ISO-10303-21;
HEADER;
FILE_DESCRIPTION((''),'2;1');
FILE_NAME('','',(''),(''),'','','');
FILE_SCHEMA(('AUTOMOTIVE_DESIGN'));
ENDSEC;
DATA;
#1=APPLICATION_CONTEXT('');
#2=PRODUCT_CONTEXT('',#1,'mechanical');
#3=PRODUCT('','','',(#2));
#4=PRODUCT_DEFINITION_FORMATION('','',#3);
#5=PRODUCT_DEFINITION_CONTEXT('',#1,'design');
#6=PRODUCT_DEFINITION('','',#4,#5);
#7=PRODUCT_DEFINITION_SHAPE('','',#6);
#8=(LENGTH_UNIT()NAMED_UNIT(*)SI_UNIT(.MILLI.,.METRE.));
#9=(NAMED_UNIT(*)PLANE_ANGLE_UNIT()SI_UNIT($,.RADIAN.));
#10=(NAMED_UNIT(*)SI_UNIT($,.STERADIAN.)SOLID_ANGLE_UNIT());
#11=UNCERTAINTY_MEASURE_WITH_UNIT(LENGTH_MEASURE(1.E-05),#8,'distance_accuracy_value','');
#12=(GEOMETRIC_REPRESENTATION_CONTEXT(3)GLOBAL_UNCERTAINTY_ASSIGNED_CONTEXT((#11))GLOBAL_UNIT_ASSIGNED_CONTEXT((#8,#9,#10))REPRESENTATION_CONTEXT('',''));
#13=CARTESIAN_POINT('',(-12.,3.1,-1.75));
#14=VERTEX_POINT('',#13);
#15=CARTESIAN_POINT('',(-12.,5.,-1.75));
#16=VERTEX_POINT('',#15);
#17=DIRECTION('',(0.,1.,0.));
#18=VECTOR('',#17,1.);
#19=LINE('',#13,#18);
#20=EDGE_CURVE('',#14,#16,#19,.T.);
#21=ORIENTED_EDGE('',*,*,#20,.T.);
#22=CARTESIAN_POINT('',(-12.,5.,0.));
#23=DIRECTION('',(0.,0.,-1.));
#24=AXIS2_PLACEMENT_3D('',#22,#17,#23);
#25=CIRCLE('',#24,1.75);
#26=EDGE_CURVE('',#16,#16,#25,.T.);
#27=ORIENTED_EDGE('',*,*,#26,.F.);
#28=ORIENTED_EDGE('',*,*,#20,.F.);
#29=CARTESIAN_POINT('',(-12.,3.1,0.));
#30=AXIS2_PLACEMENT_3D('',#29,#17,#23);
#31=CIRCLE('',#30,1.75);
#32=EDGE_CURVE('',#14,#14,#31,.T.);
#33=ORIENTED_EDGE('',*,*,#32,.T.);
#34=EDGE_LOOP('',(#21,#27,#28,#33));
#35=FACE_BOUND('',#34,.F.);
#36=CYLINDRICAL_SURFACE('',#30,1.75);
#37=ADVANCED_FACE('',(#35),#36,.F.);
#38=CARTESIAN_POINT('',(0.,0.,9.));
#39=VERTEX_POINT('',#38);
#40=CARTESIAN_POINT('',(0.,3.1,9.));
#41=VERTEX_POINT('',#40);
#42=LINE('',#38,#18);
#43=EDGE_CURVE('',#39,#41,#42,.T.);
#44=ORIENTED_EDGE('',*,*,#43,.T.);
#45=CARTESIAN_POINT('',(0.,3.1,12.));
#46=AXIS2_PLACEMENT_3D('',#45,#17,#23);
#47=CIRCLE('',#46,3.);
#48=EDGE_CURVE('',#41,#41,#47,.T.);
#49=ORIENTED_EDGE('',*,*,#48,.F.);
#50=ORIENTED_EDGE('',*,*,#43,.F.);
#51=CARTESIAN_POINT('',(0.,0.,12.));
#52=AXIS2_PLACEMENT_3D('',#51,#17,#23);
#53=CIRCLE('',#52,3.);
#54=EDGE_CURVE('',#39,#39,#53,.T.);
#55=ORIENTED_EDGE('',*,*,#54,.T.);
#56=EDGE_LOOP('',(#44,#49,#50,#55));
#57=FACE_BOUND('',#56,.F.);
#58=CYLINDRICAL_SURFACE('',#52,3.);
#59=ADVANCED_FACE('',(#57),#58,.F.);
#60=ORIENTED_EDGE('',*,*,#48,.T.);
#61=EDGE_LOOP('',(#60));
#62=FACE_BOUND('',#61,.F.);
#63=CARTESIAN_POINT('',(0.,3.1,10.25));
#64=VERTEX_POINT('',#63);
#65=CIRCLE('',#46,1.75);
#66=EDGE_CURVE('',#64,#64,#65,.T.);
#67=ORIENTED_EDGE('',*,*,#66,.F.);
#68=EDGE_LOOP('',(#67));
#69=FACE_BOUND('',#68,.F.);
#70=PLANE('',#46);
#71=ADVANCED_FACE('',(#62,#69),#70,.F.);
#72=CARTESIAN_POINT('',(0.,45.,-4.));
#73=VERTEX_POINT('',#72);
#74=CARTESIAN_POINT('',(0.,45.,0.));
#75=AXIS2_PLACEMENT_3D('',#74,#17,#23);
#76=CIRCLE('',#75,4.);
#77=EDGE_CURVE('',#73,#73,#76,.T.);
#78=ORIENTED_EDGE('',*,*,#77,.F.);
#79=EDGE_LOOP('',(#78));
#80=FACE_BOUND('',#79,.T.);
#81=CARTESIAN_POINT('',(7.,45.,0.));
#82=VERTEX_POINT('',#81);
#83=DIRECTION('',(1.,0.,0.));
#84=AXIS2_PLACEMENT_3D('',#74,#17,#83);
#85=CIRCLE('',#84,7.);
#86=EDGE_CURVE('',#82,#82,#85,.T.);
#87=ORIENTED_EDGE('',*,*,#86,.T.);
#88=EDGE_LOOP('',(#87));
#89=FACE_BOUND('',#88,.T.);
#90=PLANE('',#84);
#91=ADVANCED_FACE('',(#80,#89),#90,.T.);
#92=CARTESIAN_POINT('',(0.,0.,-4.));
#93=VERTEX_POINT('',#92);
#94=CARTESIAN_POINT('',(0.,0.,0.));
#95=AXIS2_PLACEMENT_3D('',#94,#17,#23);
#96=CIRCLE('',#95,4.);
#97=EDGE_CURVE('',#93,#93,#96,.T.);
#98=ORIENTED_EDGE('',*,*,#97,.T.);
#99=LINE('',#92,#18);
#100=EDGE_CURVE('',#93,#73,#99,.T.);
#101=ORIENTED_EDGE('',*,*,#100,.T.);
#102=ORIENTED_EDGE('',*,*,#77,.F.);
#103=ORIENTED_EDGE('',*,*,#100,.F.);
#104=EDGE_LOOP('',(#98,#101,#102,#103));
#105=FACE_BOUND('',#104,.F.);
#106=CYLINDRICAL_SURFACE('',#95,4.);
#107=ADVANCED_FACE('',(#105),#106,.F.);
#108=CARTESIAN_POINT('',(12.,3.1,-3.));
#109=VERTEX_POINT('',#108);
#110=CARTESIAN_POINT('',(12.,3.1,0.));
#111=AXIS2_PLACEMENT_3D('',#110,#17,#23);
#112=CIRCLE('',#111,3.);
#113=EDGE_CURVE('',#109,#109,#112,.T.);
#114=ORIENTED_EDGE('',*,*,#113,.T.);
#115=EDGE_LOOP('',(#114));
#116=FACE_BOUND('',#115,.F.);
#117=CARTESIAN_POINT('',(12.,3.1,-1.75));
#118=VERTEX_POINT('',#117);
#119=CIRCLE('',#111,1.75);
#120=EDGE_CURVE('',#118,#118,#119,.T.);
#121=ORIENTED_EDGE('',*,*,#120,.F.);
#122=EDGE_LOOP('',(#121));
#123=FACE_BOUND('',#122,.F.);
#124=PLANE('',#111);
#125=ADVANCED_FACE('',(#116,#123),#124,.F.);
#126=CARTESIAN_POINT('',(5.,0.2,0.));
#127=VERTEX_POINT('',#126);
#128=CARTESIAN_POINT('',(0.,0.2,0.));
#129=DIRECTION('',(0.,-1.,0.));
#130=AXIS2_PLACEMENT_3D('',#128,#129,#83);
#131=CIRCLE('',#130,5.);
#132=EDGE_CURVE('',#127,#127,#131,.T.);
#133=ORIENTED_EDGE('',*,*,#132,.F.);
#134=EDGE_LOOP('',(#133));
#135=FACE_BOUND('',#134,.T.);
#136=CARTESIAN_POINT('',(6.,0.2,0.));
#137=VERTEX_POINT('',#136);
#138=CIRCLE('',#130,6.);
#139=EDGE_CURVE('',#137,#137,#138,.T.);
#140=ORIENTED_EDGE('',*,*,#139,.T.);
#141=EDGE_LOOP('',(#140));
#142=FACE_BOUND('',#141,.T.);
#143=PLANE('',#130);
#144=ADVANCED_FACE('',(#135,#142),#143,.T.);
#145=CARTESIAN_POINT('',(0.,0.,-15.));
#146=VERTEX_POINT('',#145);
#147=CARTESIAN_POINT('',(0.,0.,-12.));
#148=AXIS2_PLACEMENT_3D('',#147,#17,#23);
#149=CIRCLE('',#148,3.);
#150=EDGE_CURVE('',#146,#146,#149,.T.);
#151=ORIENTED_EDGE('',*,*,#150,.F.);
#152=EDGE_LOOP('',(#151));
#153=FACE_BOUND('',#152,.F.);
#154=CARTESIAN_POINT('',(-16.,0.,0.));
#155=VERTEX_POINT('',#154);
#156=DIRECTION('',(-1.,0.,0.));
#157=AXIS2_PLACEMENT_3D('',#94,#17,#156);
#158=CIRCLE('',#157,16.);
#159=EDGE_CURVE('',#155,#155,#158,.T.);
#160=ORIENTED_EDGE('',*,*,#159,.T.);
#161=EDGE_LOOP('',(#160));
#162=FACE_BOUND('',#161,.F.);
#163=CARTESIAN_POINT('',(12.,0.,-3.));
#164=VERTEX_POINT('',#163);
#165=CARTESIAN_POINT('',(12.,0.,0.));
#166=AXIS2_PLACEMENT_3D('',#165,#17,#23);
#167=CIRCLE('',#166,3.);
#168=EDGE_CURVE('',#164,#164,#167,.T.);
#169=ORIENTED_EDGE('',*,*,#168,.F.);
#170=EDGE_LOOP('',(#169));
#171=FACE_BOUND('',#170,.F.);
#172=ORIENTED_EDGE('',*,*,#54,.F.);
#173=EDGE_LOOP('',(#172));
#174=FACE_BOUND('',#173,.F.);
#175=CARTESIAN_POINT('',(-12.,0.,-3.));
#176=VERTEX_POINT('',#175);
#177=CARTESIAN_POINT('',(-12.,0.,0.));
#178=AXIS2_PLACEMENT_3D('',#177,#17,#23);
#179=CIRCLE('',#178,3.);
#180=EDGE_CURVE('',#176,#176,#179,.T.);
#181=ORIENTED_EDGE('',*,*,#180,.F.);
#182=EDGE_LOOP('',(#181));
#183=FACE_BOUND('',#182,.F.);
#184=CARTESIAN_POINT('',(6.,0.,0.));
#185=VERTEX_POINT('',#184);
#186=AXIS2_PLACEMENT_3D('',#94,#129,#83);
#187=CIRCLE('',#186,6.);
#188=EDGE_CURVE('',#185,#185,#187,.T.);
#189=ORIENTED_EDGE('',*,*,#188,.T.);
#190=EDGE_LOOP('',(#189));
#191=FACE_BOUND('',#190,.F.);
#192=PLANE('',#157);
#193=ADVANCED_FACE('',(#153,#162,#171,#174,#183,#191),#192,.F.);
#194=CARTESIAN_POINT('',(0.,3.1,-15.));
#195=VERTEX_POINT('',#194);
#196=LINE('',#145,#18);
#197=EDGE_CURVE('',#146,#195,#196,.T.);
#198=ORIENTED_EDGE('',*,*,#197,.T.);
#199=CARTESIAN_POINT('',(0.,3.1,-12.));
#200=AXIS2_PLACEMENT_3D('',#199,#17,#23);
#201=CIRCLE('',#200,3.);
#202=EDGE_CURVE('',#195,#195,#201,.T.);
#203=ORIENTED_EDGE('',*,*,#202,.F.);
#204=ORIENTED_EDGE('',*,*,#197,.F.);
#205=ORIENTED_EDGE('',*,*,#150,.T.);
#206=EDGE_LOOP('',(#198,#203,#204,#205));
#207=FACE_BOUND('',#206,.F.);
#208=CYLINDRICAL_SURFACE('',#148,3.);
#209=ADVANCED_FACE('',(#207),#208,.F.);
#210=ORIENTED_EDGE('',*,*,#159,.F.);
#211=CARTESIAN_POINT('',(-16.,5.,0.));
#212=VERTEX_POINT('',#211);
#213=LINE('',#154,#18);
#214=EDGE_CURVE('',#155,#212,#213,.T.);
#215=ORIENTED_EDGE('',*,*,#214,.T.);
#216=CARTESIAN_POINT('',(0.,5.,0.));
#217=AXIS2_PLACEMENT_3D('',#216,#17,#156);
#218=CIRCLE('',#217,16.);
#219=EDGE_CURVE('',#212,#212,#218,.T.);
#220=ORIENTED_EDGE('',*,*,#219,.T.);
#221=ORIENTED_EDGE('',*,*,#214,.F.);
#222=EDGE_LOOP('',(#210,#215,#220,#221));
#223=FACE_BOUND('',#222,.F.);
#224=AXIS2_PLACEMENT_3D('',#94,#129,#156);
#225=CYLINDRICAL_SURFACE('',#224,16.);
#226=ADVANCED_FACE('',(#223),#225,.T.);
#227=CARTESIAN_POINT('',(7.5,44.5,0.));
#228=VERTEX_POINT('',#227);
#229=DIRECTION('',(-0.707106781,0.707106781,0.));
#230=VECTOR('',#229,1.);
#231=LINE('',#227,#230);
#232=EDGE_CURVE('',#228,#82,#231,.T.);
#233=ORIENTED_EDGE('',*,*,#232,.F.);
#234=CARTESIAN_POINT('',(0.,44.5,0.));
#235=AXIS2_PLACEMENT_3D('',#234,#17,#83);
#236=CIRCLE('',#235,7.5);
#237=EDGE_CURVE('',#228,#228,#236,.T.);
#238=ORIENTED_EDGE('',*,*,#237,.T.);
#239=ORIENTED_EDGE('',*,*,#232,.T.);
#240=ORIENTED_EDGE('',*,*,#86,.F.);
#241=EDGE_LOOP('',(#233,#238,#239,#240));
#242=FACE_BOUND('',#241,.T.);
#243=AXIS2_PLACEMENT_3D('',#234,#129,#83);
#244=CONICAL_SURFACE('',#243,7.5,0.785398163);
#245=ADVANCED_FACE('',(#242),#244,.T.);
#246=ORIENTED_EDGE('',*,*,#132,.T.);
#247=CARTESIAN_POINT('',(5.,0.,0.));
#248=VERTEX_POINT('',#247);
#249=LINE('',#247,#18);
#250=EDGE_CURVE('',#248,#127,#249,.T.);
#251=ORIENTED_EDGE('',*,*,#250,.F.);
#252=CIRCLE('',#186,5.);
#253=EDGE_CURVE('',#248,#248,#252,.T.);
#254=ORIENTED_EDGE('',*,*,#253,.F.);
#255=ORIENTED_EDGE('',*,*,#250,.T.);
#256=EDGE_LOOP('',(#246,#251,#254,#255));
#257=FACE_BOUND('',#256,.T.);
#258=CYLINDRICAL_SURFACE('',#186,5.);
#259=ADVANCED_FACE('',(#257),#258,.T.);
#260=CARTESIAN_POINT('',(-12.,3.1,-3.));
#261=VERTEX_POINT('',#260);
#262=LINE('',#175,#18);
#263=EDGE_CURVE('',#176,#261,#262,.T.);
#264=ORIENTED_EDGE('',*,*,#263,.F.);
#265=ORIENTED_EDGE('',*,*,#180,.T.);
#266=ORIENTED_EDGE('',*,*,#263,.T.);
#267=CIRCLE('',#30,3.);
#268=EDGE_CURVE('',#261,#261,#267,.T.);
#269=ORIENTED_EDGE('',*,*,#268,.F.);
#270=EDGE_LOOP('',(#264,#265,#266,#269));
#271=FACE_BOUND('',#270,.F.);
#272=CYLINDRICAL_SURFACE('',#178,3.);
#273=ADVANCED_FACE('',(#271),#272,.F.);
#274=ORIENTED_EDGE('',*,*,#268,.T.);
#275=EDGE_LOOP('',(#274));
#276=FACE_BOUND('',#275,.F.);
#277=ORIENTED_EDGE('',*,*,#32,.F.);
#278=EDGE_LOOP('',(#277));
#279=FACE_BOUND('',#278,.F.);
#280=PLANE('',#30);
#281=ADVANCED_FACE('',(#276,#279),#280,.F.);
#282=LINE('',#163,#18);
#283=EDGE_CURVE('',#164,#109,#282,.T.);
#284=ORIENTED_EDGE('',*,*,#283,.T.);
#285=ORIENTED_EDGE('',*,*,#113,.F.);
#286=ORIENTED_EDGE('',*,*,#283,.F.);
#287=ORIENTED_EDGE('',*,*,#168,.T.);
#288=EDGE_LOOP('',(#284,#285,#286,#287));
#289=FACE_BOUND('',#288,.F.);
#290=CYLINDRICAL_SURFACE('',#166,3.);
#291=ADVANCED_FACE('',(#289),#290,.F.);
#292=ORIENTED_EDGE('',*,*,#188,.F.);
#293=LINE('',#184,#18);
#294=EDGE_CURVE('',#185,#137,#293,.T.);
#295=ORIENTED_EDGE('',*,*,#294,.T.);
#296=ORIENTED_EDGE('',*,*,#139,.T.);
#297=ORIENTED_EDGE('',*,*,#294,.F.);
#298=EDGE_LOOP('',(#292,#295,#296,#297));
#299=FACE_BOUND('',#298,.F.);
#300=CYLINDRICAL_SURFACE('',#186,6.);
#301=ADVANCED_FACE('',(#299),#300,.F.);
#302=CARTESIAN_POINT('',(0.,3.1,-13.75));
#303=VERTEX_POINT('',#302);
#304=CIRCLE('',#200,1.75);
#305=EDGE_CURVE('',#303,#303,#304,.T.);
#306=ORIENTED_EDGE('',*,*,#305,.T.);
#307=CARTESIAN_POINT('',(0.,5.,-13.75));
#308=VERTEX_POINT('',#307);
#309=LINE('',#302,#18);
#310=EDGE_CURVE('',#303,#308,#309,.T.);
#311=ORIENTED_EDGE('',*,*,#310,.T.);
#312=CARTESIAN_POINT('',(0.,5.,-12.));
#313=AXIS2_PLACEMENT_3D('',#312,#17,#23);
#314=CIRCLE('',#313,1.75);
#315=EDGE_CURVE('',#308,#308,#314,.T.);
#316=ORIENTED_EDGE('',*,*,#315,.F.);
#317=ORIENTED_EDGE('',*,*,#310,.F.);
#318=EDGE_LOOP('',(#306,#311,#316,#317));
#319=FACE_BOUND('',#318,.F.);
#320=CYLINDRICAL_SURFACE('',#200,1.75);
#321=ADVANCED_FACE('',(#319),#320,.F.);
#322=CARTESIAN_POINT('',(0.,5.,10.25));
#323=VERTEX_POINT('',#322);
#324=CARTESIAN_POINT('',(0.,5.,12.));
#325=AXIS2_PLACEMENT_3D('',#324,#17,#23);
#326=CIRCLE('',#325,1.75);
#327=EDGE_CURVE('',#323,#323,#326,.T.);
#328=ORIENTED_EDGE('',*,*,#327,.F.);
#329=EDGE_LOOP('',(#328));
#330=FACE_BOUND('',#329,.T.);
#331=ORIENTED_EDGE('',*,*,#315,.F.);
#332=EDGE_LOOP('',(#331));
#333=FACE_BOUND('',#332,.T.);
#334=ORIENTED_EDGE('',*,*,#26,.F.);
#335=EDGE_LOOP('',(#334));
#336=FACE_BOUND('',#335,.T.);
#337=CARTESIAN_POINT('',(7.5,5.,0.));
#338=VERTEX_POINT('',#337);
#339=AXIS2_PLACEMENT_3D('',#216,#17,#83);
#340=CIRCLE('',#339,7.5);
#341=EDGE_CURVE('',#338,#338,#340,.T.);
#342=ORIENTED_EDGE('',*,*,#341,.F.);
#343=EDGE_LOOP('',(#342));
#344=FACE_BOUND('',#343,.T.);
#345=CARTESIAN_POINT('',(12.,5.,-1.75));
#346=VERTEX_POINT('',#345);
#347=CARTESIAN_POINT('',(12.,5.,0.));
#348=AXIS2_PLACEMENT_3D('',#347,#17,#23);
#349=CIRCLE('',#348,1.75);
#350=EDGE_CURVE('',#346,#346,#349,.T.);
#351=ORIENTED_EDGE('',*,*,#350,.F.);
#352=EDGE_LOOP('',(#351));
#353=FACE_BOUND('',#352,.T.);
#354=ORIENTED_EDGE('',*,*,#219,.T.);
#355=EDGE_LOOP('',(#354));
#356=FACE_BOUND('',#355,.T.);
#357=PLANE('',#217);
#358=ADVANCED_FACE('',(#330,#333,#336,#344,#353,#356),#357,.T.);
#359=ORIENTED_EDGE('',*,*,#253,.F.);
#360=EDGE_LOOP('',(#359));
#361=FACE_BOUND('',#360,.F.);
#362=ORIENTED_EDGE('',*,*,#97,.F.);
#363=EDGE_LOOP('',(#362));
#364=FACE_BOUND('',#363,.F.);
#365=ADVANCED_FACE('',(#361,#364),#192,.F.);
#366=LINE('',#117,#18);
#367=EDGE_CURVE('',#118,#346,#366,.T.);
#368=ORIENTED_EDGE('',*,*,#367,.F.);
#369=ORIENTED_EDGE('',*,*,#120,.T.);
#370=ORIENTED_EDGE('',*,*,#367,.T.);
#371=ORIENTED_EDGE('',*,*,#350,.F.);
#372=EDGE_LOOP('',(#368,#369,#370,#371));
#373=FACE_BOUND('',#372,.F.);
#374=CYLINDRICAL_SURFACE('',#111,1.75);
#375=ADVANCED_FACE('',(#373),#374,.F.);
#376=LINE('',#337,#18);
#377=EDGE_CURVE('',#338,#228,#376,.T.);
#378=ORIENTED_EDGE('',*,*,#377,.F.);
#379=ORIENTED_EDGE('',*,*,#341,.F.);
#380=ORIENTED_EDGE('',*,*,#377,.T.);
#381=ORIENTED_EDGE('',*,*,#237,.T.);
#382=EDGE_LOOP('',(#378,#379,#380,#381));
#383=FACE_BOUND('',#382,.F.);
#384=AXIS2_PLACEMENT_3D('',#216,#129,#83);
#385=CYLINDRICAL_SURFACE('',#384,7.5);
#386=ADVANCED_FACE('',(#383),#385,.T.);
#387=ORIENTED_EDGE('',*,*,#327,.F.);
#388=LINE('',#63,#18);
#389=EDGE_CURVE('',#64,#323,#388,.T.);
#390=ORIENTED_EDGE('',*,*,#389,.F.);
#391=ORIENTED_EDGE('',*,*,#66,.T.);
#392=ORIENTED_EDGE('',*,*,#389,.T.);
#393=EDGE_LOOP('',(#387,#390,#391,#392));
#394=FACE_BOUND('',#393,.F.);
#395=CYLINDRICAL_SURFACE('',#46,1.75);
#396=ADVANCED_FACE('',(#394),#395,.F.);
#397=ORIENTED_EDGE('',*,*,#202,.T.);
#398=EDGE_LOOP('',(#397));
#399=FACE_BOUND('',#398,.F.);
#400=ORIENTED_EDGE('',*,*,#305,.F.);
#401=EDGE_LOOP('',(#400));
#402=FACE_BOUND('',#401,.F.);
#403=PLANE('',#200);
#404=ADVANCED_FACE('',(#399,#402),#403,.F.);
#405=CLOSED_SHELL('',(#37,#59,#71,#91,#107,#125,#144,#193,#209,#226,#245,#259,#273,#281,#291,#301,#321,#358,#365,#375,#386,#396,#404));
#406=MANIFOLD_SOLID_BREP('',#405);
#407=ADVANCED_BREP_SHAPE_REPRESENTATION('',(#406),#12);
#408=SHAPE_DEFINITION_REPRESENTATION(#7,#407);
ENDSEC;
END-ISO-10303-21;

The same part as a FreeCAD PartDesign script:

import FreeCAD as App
import Part
import Sketcher


def edges_at(feature, points):
    """Names of the edges that pass closest to the given points."""
    edges = feature.Shape.Edges
    near = lambda p: min(range(len(edges)), key=lambda i: edges[i].distToShape(Part.Vertex(*p))[0])
    return sorted({f"Edge{near(p) + 1}" for p in points})

doc = App.newDocument("Part")
params = doc.addObject("Spreadsheet::Sheet", "Params")
for row, (alias, value) in enumerate([
    ("sketch1_diameter", "32 mm"),
    ("pad1_length", "5 mm"),
    ("sketch2_diameter", "15 mm"),
    ("pad2_length", "40 mm"),
    ("sketch3_diameter", "3.5 mm"),
    ("hole_diameter", "3.5 mm"),
    ("hole_cbore_diameter", "6 mm"),
    ("hole_cbore_depth", "3.1 mm"),
    ("sketch4_diameter", "8 mm"),
    ("hole2_diameter", "8 mm"),
    ("sketch5_diameter", "12 mm"),
    ("sketch5_diameter2", "10 mm"),
    ("pocket1_length", "0.2 mm"),
    ("chamfer_size", "0.5 mm"),
], start=1):
    params.set(f"A{row}", alias)
    params.set(f"B{row}", "=" + value)
    params.setAlias(f"B{row}", alias)

body = doc.addObject("PartDesign::Body", "Body")

# Sketch on XZ plane
sketch1 = body.newObject("Sketcher::SketchObject", "Sketch")
sketch1.AttachmentSupport = (doc.getObject("XZ_Plane"), [""])
sketch1.MapMode = "FlatFace"
sketch1.addGeometry(Part.Circle(App.Vector(0, 0, 0), App.Vector(0, 0, 1), 16), False)
sketch1.addConstraint([
    Sketcher.Constraint("Coincident", 0, 3, -1, 1),
    Sketcher.Constraint("Diameter", 0, 32.0),
])
sketch1.setExpression("Constraints[1]", "Params.sketch1_diameter")
pad1 = body.newObject("PartDesign::Pad", "Pad")
pad1.Profile = sketch1
pad1.setExpression("Length", "Params.pad1_length")
pad1.Reversed = True

# Sketch on XZ plane
sketch2 = body.newObject("Sketcher::SketchObject", "Sketch001")
sketch2.AttachmentSupport = (doc.getObject("XZ_Plane"), [""])
sketch2.MapMode = "FlatFace"
sketch2.AttachmentOffset = App.Placement(App.Vector(0, 0, -5), App.Rotation())
sketch2.addGeometry(Part.Circle(App.Vector(0, 0, 0), App.Vector(0, 0, 1), 8), False)
sketch2.addConstraint([
    Sketcher.Constraint("Coincident", 0, 3, -1, 1),
    Sketcher.Constraint("Diameter", 0, 15.0),
])
sketch2.setExpression("Constraints[1]", "Params.sketch2_diameter")
pad2 = body.newObject("PartDesign::Pad", "Pad001")
pad2.Profile = sketch2
pad2.setExpression("Length", "Params.pad2_length")
pad2.Reversed = True

# Sketch on XZ plane
sketch3 = body.newObject("Sketcher::SketchObject", "Sketch002")
sketch3.AttachmentSupport = (doc.getObject("XZ_Plane"), [""])
sketch3.MapMode = "FlatFace"
sketch3.addGeometry([
    Part.Circle(App.Vector(0, 12, 0), App.Vector(0, 0, 1), 1.8),
    Part.Circle(App.Vector(12, 0, 0), App.Vector(0, 0, 1), 1.8),
    Part.Circle(App.Vector(0, -12, 0), App.Vector(0, 0, 1), 1.8),
    Part.Circle(App.Vector(-12, 0, 0), App.Vector(0, 0, 1), 1.8),
], False)
sketch3.addConstraint([
    Sketcher.Constraint("Equal", 0, 1),
    Sketcher.Constraint("Equal", 1, 2),
    Sketcher.Constraint("Equal", 2, 3),
    Sketcher.Constraint("Symmetric", 0, 3, 2, 3, -1, 1),
    Sketcher.Constraint("Symmetric", 1, 3, 3, 3, -1, 1),
    Sketcher.Constraint("PointOnObject", 0, 3, -2),
    Sketcher.Constraint("PointOnObject", 1, 3, -1),
    Sketcher.Constraint("Diameter", 0, 3.5),
    Sketcher.Constraint("DistanceY", -1, 1, 0, 3, 12.0),
    Sketcher.Constraint("DistanceX", -1, 1, 1, 3, 12.0),
])
sketch3.setExpression("Constraints[7]", "Params.sketch3_diameter")
doc.recompute()
hole = body.newObject("PartDesign::Hole", "Hole")
hole.Profile = sketch3
hole.ThreadType = "None"
hole.setExpression("Diameter", "Params.hole_diameter")
hole.DepthType = "ThroughAll"
hole.HoleCutType = "Counterbore"
hole.setExpression("HoleCutDiameter", "Params.hole_cbore_diameter")
hole.setExpression("HoleCutDepth", "Params.hole_cbore_depth")

# Sketch on XZ plane
sketch4 = body.newObject("Sketcher::SketchObject", "Sketch003")
sketch4.AttachmentSupport = (doc.getObject("XZ_Plane"), [""])
sketch4.MapMode = "FlatFace"
sketch4.addGeometry(Part.Circle(App.Vector(0, 0, 0), App.Vector(0, 0, 1), 4), False)
sketch4.addConstraint([
    Sketcher.Constraint("Coincident", 0, 3, -1, 1),
    Sketcher.Constraint("Diameter", 0, 8.0),
])
sketch4.setExpression("Constraints[1]", "Params.sketch4_diameter")
doc.recompute()
hole2 = body.newObject("PartDesign::Hole", "Hole001")
hole2.Profile = sketch4
hole2.ThreadType = "None"
hole2.setExpression("Diameter", "Params.hole2_diameter")
hole2.DepthType = "ThroughAll"

# Sketch on XZ plane
sketch5 = body.newObject("Sketcher::SketchObject", "Sketch004")
sketch5.AttachmentSupport = (doc.getObject("XZ_Plane"), [""])
sketch5.MapMode = "FlatFace"
sketch5.addGeometry([
    Part.Circle(App.Vector(0, 0, 0), App.Vector(0, 0, 1), 6),
    Part.Circle(App.Vector(0, 0, 0), App.Vector(0, 0, 1), 5),
], False)
sketch5.addConstraint([
    Sketcher.Constraint("Coincident", 0, 3, -1, 1),
    Sketcher.Constraint("Coincident", 1, 3, -1, 1),
    Sketcher.Constraint("Diameter", 0, 12.0),
    Sketcher.Constraint("Diameter", 1, 10.0),
])
sketch5.setExpression("Constraints[2]", "Params.sketch5_diameter")
sketch5.setExpression("Constraints[3]", "Params.sketch5_diameter2")
pocket1 = body.newObject("PartDesign::Pocket", "Pocket")
pocket1.Profile = sketch5
pocket1.setExpression("Length", "Params.pocket1_length")
doc.recompute()

chamfer = body.newObject("PartDesign::Chamfer", "Chamfer")
chamfer.Base = (pocket1, edges_at(pocket1, [(-7.5, 45, 0)]))
chamfer.setExpression("Size", "Params.chamfer_size")

doc.recompute()
